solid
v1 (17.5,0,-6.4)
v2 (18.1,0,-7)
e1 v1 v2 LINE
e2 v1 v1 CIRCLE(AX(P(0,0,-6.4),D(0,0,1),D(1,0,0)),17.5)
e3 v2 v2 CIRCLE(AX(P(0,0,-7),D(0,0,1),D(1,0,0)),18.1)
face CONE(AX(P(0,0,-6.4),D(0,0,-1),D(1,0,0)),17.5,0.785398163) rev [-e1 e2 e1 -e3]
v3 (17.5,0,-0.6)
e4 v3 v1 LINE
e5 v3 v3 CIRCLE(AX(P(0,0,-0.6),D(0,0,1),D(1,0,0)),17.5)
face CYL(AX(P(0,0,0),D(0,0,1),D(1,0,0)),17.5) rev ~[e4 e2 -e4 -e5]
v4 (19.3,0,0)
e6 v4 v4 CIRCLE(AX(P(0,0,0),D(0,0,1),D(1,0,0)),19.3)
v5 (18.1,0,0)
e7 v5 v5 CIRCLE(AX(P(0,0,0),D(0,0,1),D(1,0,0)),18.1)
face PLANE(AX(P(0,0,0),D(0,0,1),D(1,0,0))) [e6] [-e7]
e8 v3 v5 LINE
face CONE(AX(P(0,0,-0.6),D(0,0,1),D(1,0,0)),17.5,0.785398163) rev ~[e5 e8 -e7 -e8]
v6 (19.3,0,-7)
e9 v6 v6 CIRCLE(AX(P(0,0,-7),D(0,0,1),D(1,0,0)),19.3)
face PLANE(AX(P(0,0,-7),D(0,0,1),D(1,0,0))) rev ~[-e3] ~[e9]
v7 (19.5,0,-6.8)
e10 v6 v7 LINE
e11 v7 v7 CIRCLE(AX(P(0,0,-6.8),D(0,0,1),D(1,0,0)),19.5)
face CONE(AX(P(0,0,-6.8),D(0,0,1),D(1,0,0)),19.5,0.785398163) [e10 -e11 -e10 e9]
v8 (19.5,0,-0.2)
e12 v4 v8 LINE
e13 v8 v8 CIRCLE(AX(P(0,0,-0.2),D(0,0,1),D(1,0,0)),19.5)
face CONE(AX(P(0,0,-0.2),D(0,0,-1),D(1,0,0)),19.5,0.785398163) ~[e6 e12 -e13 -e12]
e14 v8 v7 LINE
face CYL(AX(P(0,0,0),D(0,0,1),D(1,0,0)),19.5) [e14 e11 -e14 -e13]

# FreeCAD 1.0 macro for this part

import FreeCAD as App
import Part
import Sketcher

V = App.Vector


def edges_at(feature, points):
    """Names of the edges that pass closest to the given points."""
    edges = feature.Shape.Edges
    near = lambda p: min(range(len(edges)), key=lambda i: edges[i].distToShape(Part.Vertex(*p))[0])
    return sorted({f"Edge{near(p) + 1}" for p in points})

doc = App.newDocument("Part")
body = doc.addObject("PartDesign::Body", "Body")

# Sketch on XY plane
sketch1 = doc.addObject("Sketcher::SketchObject", "Sketch")
body.addObject(sketch1)
sketch1.AttachmentSupport = (doc.XY_Plane, [""])
sketch1.MapMode = "FlatFace"
sketch1.addGeometry([
    Part.Circle(V(0, 0, 0), V(0, 0, 1), 20),
    Part.Circle(V(0, 0, 0), V(0, 0, 1), 18),
], False)
sketch1.addConstraint([
    Sketcher.Constraint("Coincident", 0, 3, -1, 1),
    Sketcher.Constraint("Coincident", 1, 3, -1, 1),
    Sketcher.Constraint("Diameter", 0, 39.0),
    Sketcher.Constraint("Diameter", 1, 35.0),
])
pad1 = doc.addObject("PartDesign::Pad", "Pad")
body.addObject(pad1)
pad1.Profile = sketch1
pad1.Length = 7
pad1.Reversed = True
doc.recompute()

chamfer = doc.addObject("PartDesign::Chamfer", "Chamfer")
body.addObject(chamfer)
chamfer.Base = (pad1, edges_at(pad1, [(-17.5, 0, -7), (-17.5, 0, 0)]))
chamfer.Size = 0.6
doc.recompute()

chamfer2 = doc.addObject("PartDesign::Chamfer", "Chamfer001")
body.addObject(chamfer2)
chamfer2.Base = (chamfer, edges_at(chamfer, [(-19.5, 0, -7), (-19.5, 0, 0)]))
chamfer2.Size = 0.2

doc.recompute()
